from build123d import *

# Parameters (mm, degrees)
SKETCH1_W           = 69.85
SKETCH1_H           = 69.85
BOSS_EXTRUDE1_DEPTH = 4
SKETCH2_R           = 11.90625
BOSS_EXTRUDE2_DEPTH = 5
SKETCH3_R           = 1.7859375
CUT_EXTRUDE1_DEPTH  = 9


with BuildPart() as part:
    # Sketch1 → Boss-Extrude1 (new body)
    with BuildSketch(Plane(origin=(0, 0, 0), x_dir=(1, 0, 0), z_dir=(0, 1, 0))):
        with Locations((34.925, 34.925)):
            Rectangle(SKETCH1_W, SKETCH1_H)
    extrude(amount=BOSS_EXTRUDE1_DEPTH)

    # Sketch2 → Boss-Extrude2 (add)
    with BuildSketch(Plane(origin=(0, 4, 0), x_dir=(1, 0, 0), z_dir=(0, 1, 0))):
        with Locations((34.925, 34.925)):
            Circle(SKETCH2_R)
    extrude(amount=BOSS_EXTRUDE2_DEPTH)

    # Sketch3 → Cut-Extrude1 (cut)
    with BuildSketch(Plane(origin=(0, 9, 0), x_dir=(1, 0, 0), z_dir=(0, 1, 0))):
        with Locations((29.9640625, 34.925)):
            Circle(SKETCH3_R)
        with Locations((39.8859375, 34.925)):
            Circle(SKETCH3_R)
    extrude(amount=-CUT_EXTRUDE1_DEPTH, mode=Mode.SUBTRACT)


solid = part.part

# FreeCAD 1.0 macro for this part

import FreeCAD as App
import Part
import Sketcher

V = App.Vector
Q = App.Units.Quantity

doc = App.newDocument("Part")
body = doc.addObject("PartDesign::Body", "Body")

# Sketch on XZ plane
sketch1 = body.newObject("Sketcher::SketchObject", "Sketch")
sketch1.AttachmentSupport = (doc.getObject("XZ_Plane"), [""])
sketch1.MapMode = "FlatFace"
sketch1.addGeometry([
    Part.LineSegment(V(0, -70, 0), V(0, 0, 0)),
    Part.LineSegment(V(0, 0, 0), V(70, 0, 0)),
    Part.LineSegment(V(70, 0, 0), V(70, -70, 0)),
    Part.LineSegment(V(70, -70, 0), V(0, -70, 0)),
], False)
sketch1.addConstraint([
    Sketcher.Constraint("Coincident", 0, 2, 1, 1),
    Sketcher.Constraint("Coincident", 1, 2, 2, 1),
    Sketcher.Constraint("Coincident", 2, 2, 3, 1),
    Sketcher.Constraint("Coincident", 3, 2, 0, 1),
    Sketcher.Constraint("Vertical", 0),
    Sketcher.Constraint("Horizontal", 1),
    Sketcher.Constraint("Vertical", 2),
    Sketcher.Constraint("Horizontal", 3),
    Sketcher.Constraint("Coincident", 0, 2, -1, 1),
    Sketcher.Constraint("Equal", 3, 0),
    Sketcher.Constraint("DistanceX", 1, 1, 1, 2, Q("69.85 mm")),
])
pad1 = body.newObject("PartDesign::Pad", "Pad")
pad1.Profile = sketch1
pad1.Length = 4
pad1.Reversed = True

# Sketch on XZ plane
sketch2 = body.newObject("Sketcher::SketchObject", "Sketch001")
sketch2.AttachmentSupport = (doc.getObject("XZ_Plane"), [""])
sketch2.MapMode = "FlatFace"
sketch2.AttachmentOffset = App.Placement(V(0, 0, -4), App.Rotation())
sketch2.addGeometry(Part.Circle(V(35, -35, 0), V(0, 0, 1), 12), False)
sketch2.addConstraint([
    Sketcher.Constraint("Diameter", 0, Q("23.8125 mm")),
    Sketcher.Constraint("DistanceX", -1, 1, 0, 3, Q("34.925 mm")),
    Sketcher.Constraint("DistanceY", 0, 3, -1, 1, Q("34.925 mm")),
])
pad2 = body.newObject("PartDesign::Pad", "Pad001")
pad2.Profile = sketch2
pad2.Length = 5
pad2.Reversed = True

# Sketch on XZ plane
sketch3 = body.newObject("Sketcher::SketchObject", "Sketch002")
sketch3.AttachmentSupport = (doc.getObject("XZ_Plane"), [""])
sketch3.MapMode = "FlatFace"
sketch3.AttachmentOffset = App.Placement(V(0, 0, -9), App.Rotation())
sketch3.addGeometry([
    Part.Circle(V(30, -34.9, 0), V(0, 0, 1), 1.8),
    Part.Circle(V(39.9, -34.9, 0), V(0, 0, 1), 1.8),
], False)
sketch3.addConstraint([
    Sketcher.Constraint("Equal", 0, 1),
    Sketcher.Constraint("Horizontal", 0, 3, 1, 3),
    Sketcher.Constraint("Diameter", 0, Q("3.571875 mm")),
    Sketcher.Constraint("DistanceY", 0, 3, -1, 1, Q("34.925 mm")),
    Sketcher.Constraint("DistanceX", -1, 1, 0, 3, Q("29.964063 mm")),
    Sketcher.Constraint("DistanceX", -1, 1, 1, 3, Q("39.885937 mm")),
])
pocket1 = body.newObject("PartDesign::Pocket", "Pocket")
pocket1.Profile = sketch3
pocket1.Length = 9
pocket1.Reversed = True

doc.recompute()
